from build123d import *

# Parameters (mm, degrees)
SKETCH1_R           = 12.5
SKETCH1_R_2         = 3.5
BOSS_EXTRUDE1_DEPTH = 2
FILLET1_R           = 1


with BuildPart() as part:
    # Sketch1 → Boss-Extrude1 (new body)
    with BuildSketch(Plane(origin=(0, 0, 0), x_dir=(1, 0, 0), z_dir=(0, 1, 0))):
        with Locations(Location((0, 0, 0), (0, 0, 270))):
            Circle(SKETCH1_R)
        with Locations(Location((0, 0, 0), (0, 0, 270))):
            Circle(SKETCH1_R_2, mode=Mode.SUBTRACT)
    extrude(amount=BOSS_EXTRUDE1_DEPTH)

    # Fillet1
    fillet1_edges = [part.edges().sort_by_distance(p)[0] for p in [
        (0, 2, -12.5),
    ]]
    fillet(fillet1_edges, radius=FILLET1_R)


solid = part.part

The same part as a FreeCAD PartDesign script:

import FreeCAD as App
import Part
import Sketcher
from FreeCAD import Vector
Q = App.Units.Quantity


def edges_at(feature, points):
    """Names of the edges that pass closest to the given points."""
    edges = feature.Shape.Edges
    near = lambda p: min(range(len(edges)), key=lambda i: edges[i].distToShape(Part.Vertex(*p))[0])
    return sorted({f"Edge{near(p) + 1}" for p in points})

doc = App.newDocument("Part")
body = doc.addObject("PartDesign::Body", "Body")

sketch1 = body.newObject("Sketcher::SketchObject", "Sketch")
sketch1.AttachmentSupport = (doc.getObject("XZ_Plane"), [""])
sketch1.MapMode = "FlatFace"
sketch1.addGeometry(Part.Circle(Vector(0, 0, 0), Vector(0, 0, 1), 12.5), False)
sketch1.addGeometry(Part.Circle(Vector(0, 0, 0), Vector(0, 0, 1), 3.5), False)
sketch1.addConstraint(Sketcher.Constraint("Coincident", 0, 3, -1, 1))
sketch1.addConstraint(Sketcher.Constraint("Coincident", 1, 3, -1, 1))
sketch1.addConstraint(Sketcher.Constraint("Diameter", 0, Q("25 mm")))
sketch1.addConstraint(Sketcher.Constraint("Diameter", 1, Q("7 mm")))
pad1 = body.newObject("PartDesign::Pad", "Pad")
pad1.Profile = sketch1
pad1.Length = 2
pad1.Reversed = True
doc.recompute()

fillet = body.newObject("PartDesign::Fillet", "Fillet")
fillet.Base = (pad1, edges_at(pad1, [(0, 2, -12.5)]))
fillet.Radius = 1

doc.recompute()
